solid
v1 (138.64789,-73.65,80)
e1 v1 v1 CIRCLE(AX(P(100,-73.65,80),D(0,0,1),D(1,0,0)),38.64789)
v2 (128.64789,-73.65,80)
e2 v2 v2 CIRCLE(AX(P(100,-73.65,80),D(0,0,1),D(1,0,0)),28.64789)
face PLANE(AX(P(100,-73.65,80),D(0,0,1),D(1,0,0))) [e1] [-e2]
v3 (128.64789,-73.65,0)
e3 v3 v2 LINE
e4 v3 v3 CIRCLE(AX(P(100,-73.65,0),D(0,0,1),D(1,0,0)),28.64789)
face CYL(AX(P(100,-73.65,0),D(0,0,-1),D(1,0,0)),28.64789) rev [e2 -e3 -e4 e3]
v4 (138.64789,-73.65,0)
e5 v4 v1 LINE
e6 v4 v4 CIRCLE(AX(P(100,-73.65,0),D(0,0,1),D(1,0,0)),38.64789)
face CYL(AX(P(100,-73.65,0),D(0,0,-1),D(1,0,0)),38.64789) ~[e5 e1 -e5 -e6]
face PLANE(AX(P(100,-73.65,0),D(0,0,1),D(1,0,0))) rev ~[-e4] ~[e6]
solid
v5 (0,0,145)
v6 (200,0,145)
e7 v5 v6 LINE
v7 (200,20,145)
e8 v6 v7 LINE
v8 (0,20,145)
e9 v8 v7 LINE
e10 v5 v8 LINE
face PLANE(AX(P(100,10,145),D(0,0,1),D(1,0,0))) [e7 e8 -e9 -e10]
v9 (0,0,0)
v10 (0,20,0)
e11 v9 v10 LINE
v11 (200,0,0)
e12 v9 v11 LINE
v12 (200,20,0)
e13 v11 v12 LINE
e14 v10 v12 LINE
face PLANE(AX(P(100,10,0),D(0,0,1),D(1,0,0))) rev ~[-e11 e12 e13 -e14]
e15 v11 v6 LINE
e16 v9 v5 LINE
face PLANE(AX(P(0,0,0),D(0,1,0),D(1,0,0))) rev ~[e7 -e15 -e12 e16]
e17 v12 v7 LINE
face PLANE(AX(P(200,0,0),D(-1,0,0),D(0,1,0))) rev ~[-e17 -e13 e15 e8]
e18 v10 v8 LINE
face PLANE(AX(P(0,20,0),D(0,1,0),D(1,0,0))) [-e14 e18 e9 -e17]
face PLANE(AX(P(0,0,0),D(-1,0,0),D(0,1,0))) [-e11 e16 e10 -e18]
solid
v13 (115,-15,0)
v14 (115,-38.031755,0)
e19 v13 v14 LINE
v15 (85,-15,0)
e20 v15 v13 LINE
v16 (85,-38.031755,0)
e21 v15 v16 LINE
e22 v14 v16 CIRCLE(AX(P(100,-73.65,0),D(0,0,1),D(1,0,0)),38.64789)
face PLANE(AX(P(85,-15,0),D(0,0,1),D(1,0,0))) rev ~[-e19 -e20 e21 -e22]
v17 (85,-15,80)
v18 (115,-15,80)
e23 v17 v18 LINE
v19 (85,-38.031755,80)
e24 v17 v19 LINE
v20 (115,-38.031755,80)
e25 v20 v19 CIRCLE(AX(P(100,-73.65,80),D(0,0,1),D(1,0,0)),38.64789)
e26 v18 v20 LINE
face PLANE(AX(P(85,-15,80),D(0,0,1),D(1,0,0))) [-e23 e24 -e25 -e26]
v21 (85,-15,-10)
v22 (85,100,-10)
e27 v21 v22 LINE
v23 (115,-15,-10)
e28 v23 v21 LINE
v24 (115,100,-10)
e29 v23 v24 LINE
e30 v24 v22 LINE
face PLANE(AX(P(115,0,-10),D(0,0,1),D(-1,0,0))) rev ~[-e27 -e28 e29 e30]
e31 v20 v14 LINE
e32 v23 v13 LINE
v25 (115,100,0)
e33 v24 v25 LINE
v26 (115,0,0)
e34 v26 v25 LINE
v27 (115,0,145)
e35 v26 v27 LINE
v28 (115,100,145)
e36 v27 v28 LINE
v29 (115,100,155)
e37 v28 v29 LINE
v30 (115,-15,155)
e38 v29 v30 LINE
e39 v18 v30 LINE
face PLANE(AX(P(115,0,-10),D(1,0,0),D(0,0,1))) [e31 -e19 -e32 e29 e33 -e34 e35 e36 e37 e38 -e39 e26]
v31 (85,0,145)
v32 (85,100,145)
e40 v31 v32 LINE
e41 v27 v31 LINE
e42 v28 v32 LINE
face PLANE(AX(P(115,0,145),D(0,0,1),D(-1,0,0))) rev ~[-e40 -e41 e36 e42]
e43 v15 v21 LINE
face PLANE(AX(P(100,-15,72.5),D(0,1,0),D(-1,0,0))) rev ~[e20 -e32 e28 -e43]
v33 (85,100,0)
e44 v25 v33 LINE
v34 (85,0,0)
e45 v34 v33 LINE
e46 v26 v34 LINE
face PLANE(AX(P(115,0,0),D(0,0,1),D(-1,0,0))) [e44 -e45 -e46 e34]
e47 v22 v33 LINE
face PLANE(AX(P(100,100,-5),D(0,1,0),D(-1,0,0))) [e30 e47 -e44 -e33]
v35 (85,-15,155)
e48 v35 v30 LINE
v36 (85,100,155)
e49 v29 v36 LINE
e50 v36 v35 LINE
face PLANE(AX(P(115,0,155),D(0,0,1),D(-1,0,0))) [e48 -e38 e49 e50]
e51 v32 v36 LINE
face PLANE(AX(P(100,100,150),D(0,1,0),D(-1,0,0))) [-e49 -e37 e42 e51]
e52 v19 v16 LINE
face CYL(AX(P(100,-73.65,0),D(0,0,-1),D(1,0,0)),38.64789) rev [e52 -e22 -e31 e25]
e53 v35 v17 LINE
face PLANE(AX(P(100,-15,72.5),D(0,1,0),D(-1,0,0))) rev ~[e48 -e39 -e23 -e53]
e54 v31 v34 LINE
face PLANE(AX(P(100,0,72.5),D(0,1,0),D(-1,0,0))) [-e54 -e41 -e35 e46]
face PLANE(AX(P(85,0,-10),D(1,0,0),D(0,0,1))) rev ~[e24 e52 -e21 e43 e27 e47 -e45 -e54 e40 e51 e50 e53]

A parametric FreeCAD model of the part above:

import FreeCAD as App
import Part
import Sketcher
from FreeCAD import Vector
Q = App.Units.Quantity

doc = App.newDocument("Part")
body = doc.addObject("PartDesign::Body", "Body")

# Sketch on XY plane
sketch1 = body.newObject("Sketcher::SketchObject", "Sketch")
sketch1.AttachmentSupport = (doc.getObject("XY_Plane"), [""])
sketch1.MapMode = "FlatFace"
sketch1.addGeometry([
    Part.LineSegment(Vector(0, 20, 0), Vector(0, 0, 0)),
    Part.LineSegment(Vector(0, 0, 0), Vector(200, 0, 0)),
    Part.LineSegment(Vector(200, 0, 0), Vector(200, 20, 0)),
    Part.LineSegment(Vector(200, 20, 0), Vector(0, 20, 0)),
], False)
sketch1.addConstraint([
    Sketcher.Constraint("Coincident", 0, 2, 1, 1),
    Sketcher.Constraint("Coincident", 1, 2, 2, 1),
    Sketcher.Constraint("Coincident", 2, 2, 3, 1),
    Sketcher.Constraint("Coincident", 3, 2, 0, 1),
    Sketcher.Constraint("Vertical", 0),
    Sketcher.Constraint("Horizontal", 1),
    Sketcher.Constraint("Vertical", 2),
    Sketcher.Constraint("Horizontal", 3),
    Sketcher.Constraint("Coincident", 0, 2, -1, 1),
    Sketcher.Constraint("DistanceX", 1, 1, 1, 2, Q("200 mm")),
    Sketcher.Constraint("DistanceY", 0, 2, 0, 1, Q("20 mm")),
])
pad1 = body.newObject("PartDesign::Pad", "Pad")
pad1.Profile = sketch1
pad1.Length = 145
body2 = doc.addObject("PartDesign::Body", "Body001")

# Sketch on XY plane
sketch2 = body2.newObject("Sketcher::SketchObject", "Sketch001")
sketch2.AttachmentSupport = (doc.getObject("XY_Plane001"), [""])
sketch2.MapMode = "FlatFace"
sketch2.addGeometry([
    Part.Circle(Vector(100, -74, 0), Vector(0, 0, 1), 39),
    Part.Circle(Vector(100, -74, 0), Vector(0, 0, 1), 29),
], False)
sketch2.addConstraint([
    Sketcher.Constraint("Coincident", 1, 3, 0, 3),
    Sketcher.Constraint("DistanceX", -1, 1, 0, 3, Q("100 mm")),
    Sketcher.Constraint("Diameter", 0, Q("77.29578 mm")),
    Sketcher.Constraint("Diameter", 1, Q("57.29578 mm")),
    Sketcher.Constraint("DistanceY", 0, 3, -1, 1, Q("73.65 mm")),
])
pad2 = body2.newObject("PartDesign::Pad", "Pad001")
pad2.Profile = sketch2
pad2.Length = 80
body3 = doc.addObject("PartDesign::Body", "Body002")

# Sketch on XY plane
sketch3 = body3.newObject("Sketcher::SketchObject", "Sketch002")
sketch3.AttachmentSupport = (doc.getObject("XY_Plane002"), [""])
sketch3.MapMode = "FlatFace"
sketch3.addGeometry([
    Part.Circle(Vector(100, -74, 0), Vector(0, 0, 1), 39),
    Part.Circle(Vector(100, -74, 0), Vector(0, 0, 1), 29),
], False)
sketch3.addConstraint([
    Sketcher.Constraint("Coincident", 1, 3, 0, 3),
    Sketcher.Constraint("DistanceX", -1, 1, 0, 3, Q("100 mm")),
    Sketcher.Constraint("Diameter", 0, Q("77.29578 mm")),
    Sketcher.Constraint("Diameter", 1, Q("57.29578 mm")),
    Sketcher.Constraint("DistanceY", 0, 3, -1, 1, Q("73.65 mm")),
])
pad3 = body3.newObject("PartDesign::Pad", "Pad002")
pad3.Profile = sketch3
pad3.Length = 80
body4 = doc.addObject("PartDesign::Body", "Body003")

# Sketch on XZ plane
sketch4 = body4.newObject("Sketcher::SketchObject", "Sketch003")
sketch4.AttachmentSupport = (doc.getObject("XZ_Plane003"), [""])
sketch4.MapMode = "FlatFace"
sketch4.addGeometry([
    Part.LineSegment(Vector(115, 155, 0), Vector(115, 145, 0)),
    Part.LineSegment(Vector(115, 145, 0), Vector(85, 145, 0)),
    Part.LineSegment(Vector(85, 145, 0), Vector(85, 155, 0)),
    Part.LineSegment(Vector(85, 155, 0), Vector(115, 155, 0)),
], False)
sketch4.addConstraint([
    Sketcher.Constraint("Coincident", 0, 2, 1, 1),
    Sketcher.Constraint("Coincident", 1, 2, 2, 1),
    Sketcher.Constraint("Coincident", 2, 2, 3, 1),
    Sketcher.Constraint("Coincident", 3, 2, 0, 1),
    Sketcher.Constraint("Vertical", 0),
    Sketcher.Constraint("Horizontal", 1),
    Sketcher.Constraint("Vertical", 2),
    Sketcher.Constraint("Horizontal", 3),
    Sketcher.Constraint("DistanceX", 1, 2, 1, 1, Q("30 mm")),
    Sketcher.Constraint("DistanceY", 0, 2, 0, 1, Q("10 mm")),
    Sketcher.Constraint("DistanceX", -1, 1, 0, 2, Q("115 mm")),
    Sketcher.Constraint("DistanceY", -1, 1, 0, 2, Q("145 mm")),
])
pad4 = body4.newObject("PartDesign::Pad", "Pad003")
pad4.Profile = sketch4
pad4.Length = 100
pad4.Reversed = True
body5 = doc.addObject("PartDesign::Body", "Body004")

# Sketch on XZ plane
sketch5 = body5.newObject("Sketcher::SketchObject", "Sketch004")
sketch5.AttachmentSupport = (doc.getObject("XZ_Plane004"), [""])
sketch5.MapMode = "FlatFace"
sketch5.addGeometry([
    Part.LineSegment(Vector(115, 0, 0), Vector(115, -10, 0)),
    Part.LineSegment(Vector(115, -10, 0), Vector(85, -10, 0)),
    Part.LineSegment(Vector(85, -10, 0), Vector(85, 0, 0)),
    Part.LineSegment(Vector(85, 0, 0), Vector(115, 0, 0)),
], False)
sketch5.addConstraint([
    Sketcher.Constraint("Coincident", 0, 2, 1, 1),
    Sketcher.Constraint("Coincident", 1, 2, 2, 1),
    Sketcher.Constraint("Coincident", 2, 2, 3, 1),
    Sketcher.Constraint("Coincident", 3, 2, 0, 1),
    Sketcher.Constraint("Vertical", 0),
    Sketcher.Constraint("Horizontal", 1),
    Sketcher.Constraint("Vertical", 2),
    Sketcher.Constraint("Horizontal", 3),
    Sketcher.Constraint("PointOnObject", 2, 2, -1),
    Sketcher.Constraint("DistanceX", 1, 2, 1, 1, Q("30 mm")),
    Sketcher.Constraint("DistanceY", 0, 2, 0, 1, Q("10 mm")),
    Sketcher.Constraint("DistanceX", -1, 1, 0, 2, Q("115 mm")),
])
pad5 = body5.newObject("PartDesign::Pad", "Pad004")
pad5.Profile = sketch5
pad5.Length = 100
pad5.Reversed = True
body6 = doc.addObject("PartDesign::Body", "Body005")

# Sketch on XZ plane
sketch6 = body6.newObject("Sketcher::SketchObject", "Sketch005")
sketch6.AttachmentSupport = (doc.getObject("XZ_Plane005"), [""])
sketch6.MapMode = "FlatFace"
sketch6.AttachmentOffset = App.Placement(Vector(0, 0, 15), App.Rotation())
sketch6.addGeometry([
    Part.LineSegment(Vector(85, 80, 0), Vector(85, 0, 0)),
    Part.LineSegment(Vector(85, 0, 0), Vector(115, 0, 0)),
    Part.LineSegment(Vector(115, 0, 0), Vector(115, 80, 0)),
    Part.LineSegment(Vector(115, 80, 0), Vector(85, 80, 0)),
], False)
sketch6.addConstraint([
    Sketcher.Constraint("Coincident", 0, 2, 1, 1),
    Sketcher.Constraint("Coincident", 1, 2, 2, 1),
    Sketcher.Constraint("Coincident", 2, 2, 3, 1),
    Sketcher.Constraint("Coincident", 3, 2, 0, 1),
    Sketcher.Constraint("Vertical", 0),
    Sketcher.Constraint("Horizontal", 1),
    Sketcher.Constraint("Vertical", 2),
    Sketcher.Constraint("Horizontal", 3),
    Sketcher.Constraint("PointOnObject", 0, 2, -1),
    Sketcher.Constraint("DistanceX", 1, 1, 1, 2, Q("30 mm")),
    Sketcher.Constraint("DistanceY", 0, 2, 0, 1, Q("80 mm")),
    Sketcher.Constraint("DistanceX", -1, 1, 0, 2, Q("85 mm")),
])
pad6 = body6.newObject("PartDesign::Pad", "Pad005")
pad6.Profile = sketch6
pad6.Length = 25
body7 = doc.addObject("PartDesign::Body", "Body006")

# Sketch on XZ plane
sketch7 = body7.newObject("Sketcher::SketchObject", "Sketch006")
sketch7.AttachmentSupport = (doc.getObject("XZ_Plane006"), [""])
sketch7.MapMode = "FlatFace"
sketch7.addGeometry([
    Part.LineSegment(Vector(85, 155, 0), Vector(85, -10, 0)),
    Part.LineSegment(Vector(85, -10, 0), Vector(115, -10, 0)),
    Part.LineSegment(Vector(115, -10, 0), Vector(115, 155, 0)),
    Part.LineSegment(Vector(115, 155, 0), Vector(85, 155, 0)),
], False)
sketch7.addConstraint([
    Sketcher.Constraint("Coincident", 0, 2, 1, 1),
    Sketcher.Constraint("Coincident", 1, 2, 2, 1),
    Sketcher.Constraint("Coincident", 2, 2, 3, 1),
    Sketcher.Constraint("Coincident", 3, 2, 0, 1),
    Sketcher.Constraint("Vertical", 0),
    Sketcher.Constraint("Horizontal", 1),
    Sketcher.Constraint("Vertical", 2),
    Sketcher.Constraint("Horizontal", 3),
    Sketcher.Constraint("DistanceX", 1, 1, 1, 2, Q("30 mm")),
    Sketcher.Constraint("DistanceY", 0, 2, 0, 1, Q("165 mm")),
    Sketcher.Constraint("DistanceX", -1, 1, 0, 2, Q("85 mm")),
    Sketcher.Constraint("DistanceY", 0, 2, -1, 1, Q("10 mm")),
])
pad7 = body7.newObject("PartDesign::Pad", "Pad006")
pad7.Profile = sketch7
pad7.Length = 15
doc.recompute()

boolean = body7.newObject("PartDesign::Boolean", "Boolean")
boolean.Type = "Fuse"
boolean.addObjects([body4])
doc.recompute()

boolean2 = body7.newObject("PartDesign::Boolean", "Boolean001")
boolean2.Type = "Fuse"
boolean2.addObjects([body5])
doc.recompute()

boolean3 = body7.newObject("PartDesign::Boolean", "Boolean002")
boolean3.Type = "Fuse"
boolean3.addObjects([body6])
doc.recompute()

boolean4 = body7.newObject("PartDesign::Boolean", "Boolean003")
boolean4.Type = "Cut"
boolean4.addObjects([body3])

doc.recompute()
